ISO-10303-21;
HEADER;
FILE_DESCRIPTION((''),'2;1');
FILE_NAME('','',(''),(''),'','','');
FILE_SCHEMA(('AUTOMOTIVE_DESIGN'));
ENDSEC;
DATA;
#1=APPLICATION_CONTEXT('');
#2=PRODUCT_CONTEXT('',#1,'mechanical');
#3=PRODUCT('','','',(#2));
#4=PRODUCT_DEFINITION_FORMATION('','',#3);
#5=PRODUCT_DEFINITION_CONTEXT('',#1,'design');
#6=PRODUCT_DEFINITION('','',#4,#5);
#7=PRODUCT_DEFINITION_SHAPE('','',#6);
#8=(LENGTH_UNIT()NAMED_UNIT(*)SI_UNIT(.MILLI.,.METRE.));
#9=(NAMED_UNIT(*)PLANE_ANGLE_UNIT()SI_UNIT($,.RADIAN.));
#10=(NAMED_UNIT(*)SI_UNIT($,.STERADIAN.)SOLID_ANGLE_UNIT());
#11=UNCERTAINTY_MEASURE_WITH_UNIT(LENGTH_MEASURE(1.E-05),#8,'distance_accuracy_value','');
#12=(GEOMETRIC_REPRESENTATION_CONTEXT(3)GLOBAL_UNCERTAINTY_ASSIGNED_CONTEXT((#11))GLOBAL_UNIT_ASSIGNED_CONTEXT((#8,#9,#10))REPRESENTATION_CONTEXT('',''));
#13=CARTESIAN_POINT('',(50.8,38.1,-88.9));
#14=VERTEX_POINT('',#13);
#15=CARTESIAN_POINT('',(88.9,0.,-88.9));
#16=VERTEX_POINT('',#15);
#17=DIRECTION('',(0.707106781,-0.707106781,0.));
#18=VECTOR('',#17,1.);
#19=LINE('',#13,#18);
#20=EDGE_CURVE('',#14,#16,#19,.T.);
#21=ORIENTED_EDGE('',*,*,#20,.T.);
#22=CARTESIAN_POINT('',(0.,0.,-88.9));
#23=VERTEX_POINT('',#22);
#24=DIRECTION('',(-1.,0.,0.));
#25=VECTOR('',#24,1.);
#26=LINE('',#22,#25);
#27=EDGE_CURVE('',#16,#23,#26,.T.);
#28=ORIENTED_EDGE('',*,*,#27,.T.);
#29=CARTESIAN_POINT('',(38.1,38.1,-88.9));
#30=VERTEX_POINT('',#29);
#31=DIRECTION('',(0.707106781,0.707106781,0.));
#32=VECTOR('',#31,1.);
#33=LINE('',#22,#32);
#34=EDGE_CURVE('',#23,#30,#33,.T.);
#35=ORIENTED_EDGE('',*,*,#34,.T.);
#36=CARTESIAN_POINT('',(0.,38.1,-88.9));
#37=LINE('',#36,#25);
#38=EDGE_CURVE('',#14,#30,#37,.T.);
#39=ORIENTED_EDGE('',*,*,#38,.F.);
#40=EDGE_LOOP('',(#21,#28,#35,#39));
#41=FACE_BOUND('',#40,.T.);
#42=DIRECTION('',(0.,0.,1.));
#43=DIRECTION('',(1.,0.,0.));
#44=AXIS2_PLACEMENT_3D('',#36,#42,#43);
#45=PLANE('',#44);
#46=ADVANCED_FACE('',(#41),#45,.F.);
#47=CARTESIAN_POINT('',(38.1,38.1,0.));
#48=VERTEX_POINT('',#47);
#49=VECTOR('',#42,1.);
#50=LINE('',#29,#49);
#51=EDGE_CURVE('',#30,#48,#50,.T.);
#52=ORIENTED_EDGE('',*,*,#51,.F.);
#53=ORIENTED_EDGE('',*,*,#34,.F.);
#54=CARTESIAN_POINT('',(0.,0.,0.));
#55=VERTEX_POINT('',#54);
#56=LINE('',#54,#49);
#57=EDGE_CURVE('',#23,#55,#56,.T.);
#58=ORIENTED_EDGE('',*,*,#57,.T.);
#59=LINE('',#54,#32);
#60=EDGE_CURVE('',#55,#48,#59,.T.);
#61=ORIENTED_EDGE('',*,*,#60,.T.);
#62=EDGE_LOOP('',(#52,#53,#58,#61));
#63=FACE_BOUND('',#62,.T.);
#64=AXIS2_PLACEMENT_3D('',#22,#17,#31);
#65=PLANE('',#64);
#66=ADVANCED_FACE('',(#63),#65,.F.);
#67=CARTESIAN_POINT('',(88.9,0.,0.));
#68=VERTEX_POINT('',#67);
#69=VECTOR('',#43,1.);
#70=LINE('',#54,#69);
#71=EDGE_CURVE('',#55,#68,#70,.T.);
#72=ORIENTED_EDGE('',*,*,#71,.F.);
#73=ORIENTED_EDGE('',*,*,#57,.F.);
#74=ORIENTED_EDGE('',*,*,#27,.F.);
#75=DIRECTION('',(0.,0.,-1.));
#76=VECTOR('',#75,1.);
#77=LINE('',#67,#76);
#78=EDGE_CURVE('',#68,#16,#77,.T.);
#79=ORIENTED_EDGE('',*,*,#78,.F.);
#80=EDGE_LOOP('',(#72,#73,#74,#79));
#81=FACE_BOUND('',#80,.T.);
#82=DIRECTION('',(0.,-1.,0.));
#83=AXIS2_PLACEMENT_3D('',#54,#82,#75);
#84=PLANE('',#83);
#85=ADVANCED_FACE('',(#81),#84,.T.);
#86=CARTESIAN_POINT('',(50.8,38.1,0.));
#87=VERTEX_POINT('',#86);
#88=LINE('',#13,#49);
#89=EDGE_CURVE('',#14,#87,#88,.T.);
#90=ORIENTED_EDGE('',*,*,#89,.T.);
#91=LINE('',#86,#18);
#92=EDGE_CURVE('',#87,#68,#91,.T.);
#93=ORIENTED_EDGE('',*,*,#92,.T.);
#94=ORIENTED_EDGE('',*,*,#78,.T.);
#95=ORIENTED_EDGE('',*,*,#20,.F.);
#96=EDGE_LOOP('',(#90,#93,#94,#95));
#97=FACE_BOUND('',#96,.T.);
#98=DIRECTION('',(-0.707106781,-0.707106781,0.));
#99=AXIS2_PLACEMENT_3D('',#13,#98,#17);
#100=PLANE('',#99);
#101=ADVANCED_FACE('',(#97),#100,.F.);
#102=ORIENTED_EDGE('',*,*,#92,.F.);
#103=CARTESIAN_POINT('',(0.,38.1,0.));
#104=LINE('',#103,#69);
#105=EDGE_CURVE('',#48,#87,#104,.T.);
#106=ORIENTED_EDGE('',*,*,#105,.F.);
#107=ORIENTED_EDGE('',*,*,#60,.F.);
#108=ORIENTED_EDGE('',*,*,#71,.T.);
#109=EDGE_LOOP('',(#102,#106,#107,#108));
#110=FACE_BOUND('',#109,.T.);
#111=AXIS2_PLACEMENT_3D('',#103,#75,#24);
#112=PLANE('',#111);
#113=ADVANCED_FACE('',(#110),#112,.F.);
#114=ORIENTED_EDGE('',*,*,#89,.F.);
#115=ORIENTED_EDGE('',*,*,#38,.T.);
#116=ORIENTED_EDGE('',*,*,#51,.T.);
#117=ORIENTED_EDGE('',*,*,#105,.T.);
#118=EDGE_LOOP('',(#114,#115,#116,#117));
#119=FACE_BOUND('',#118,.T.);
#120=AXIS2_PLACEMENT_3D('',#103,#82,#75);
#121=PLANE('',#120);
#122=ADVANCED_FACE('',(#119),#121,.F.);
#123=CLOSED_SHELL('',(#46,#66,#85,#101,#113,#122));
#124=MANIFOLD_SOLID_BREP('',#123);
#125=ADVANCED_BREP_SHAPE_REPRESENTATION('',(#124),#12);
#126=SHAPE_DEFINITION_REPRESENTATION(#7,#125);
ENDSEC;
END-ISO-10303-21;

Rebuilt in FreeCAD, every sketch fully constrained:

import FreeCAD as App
import Part
import Sketcher

V = App.Vector
Q = App.Units.Quantity

doc = App.newDocument("Part")
body = doc.addObject("PartDesign::Body", "Body")

# Sketch on XZ plane
sketch1 = doc.addObject("Sketcher::SketchObject", "Sketch")
body.addObject(sketch1)
sketch1.AttachmentSupport = (doc.XZ_Plane, [""])
sketch1.MapMode = "FlatFace"
sketch1.addGeometry([
    Part.LineSegment(V(0, -89, 0), V(0, 0, 0)),
    Part.LineSegment(V(0, 0, 0), V(89, 0, 0)),
    Part.LineSegment(V(89, 0, 0), V(89, -89, 0)),
    Part.LineSegment(V(89, -89, 0), V(0, -89, 0)),
], False)
sketch1.addConstraint([
    Sketcher.Constraint("Coincident", 0, 2, 1, 1),
    Sketcher.Constraint("Coincident", 1, 2, 2, 1),
    Sketcher.Constraint("Coincident", 2, 2, 3, 1),
    Sketcher.Constraint("Coincident", 3, 2, 0, 1),
    Sketcher.Constraint("Vertical", 0),
    Sketcher.Constraint("Horizontal", 1),
    Sketcher.Constraint("Vertical", 2),
    Sketcher.Constraint("Horizontal", 3),
    Sketcher.Constraint("Coincident", 0, 2, -1, 1),
    Sketcher.Constraint("Equal", 3, 0),
    Sketcher.Constraint("DistanceX", 1, 1, 1, 2, Q("3.5 in")),
])
pad1 = doc.addObject("PartDesign::Pad", "Pad")
body.addObject(pad1)
pad1.Profile = sketch1
pad1.Length = Q("1.5 in")
pad1.Reversed = True

# Sketch on XY plane
sketch2 = doc.addObject("Sketcher::SketchObject", "Sketch001")
body.addObject(sketch2)
sketch2.AttachmentSupport = (doc.XY_Plane, [""])
sketch2.MapMode = "FlatFace"
sketch2.addGeometry([
    Part.LineSegment(V(0, 0, 0), V(38, 38, 0)),  # 0
    Part.LineSegment(V(38, 38, 0), V(0, 38, 0)),  # 1
    Part.LineSegment(V(0, 38, 0), V(0, 0, 0)),  # 2
    Part.LineSegment(V(89, 0, 0), V(89, 38, 0)),  # 3
    Part.LineSegment(V(89, 38, 0), V(51, 38, 0)),  # 4
    Part.LineSegment(V(51, 38, 0), V(89, 0, 0)),  # 5
], False)
sketch2.addConstraint([
    Sketcher.Constraint("Coincident", 0, 2, 1, 1),
    Sketcher.Constraint("Coincident", 1, 2, 2, 1),
    Sketcher.Constraint("Coincident", 2, 2, 0, 1),
    Sketcher.Constraint("Coincident", 3, 2, 4, 1),
    Sketcher.Constraint("Coincident", 4, 2, 5, 1),
    Sketcher.Constraint("Coincident", 5, 2, 3, 1),
    Sketcher.Constraint("Horizontal", 1),
    Sketcher.Constraint("Vertical", 2),
    Sketcher.Constraint("Vertical", 3),
    Sketcher.Constraint("Horizontal", 4),
    Sketcher.Constraint("Coincident", 2, 2, -1, 1),
    Sketcher.Constraint("PointOnObject", 5, 2, -1),
    Sketcher.Constraint("Perpendicular", 0, 5),
    Sketcher.Constraint("Horizontal", 1, 2, 3, 2),
    Sketcher.Constraint("Equal", 1, 4),
    Sketcher.Constraint("DistanceX", 1, 2, 1, 1, Q("1.5 in")),
    Sketcher.Constraint("DistanceX", -1, 1, 4, 2, Q("2 in")),
])
pocket1 = doc.addObject("PartDesign::Pocket", "Pocket")
body.addObject(pocket1)
pocket1.Profile = sketch2
pocket1.Type = "ThroughAll"

doc.recompute()
